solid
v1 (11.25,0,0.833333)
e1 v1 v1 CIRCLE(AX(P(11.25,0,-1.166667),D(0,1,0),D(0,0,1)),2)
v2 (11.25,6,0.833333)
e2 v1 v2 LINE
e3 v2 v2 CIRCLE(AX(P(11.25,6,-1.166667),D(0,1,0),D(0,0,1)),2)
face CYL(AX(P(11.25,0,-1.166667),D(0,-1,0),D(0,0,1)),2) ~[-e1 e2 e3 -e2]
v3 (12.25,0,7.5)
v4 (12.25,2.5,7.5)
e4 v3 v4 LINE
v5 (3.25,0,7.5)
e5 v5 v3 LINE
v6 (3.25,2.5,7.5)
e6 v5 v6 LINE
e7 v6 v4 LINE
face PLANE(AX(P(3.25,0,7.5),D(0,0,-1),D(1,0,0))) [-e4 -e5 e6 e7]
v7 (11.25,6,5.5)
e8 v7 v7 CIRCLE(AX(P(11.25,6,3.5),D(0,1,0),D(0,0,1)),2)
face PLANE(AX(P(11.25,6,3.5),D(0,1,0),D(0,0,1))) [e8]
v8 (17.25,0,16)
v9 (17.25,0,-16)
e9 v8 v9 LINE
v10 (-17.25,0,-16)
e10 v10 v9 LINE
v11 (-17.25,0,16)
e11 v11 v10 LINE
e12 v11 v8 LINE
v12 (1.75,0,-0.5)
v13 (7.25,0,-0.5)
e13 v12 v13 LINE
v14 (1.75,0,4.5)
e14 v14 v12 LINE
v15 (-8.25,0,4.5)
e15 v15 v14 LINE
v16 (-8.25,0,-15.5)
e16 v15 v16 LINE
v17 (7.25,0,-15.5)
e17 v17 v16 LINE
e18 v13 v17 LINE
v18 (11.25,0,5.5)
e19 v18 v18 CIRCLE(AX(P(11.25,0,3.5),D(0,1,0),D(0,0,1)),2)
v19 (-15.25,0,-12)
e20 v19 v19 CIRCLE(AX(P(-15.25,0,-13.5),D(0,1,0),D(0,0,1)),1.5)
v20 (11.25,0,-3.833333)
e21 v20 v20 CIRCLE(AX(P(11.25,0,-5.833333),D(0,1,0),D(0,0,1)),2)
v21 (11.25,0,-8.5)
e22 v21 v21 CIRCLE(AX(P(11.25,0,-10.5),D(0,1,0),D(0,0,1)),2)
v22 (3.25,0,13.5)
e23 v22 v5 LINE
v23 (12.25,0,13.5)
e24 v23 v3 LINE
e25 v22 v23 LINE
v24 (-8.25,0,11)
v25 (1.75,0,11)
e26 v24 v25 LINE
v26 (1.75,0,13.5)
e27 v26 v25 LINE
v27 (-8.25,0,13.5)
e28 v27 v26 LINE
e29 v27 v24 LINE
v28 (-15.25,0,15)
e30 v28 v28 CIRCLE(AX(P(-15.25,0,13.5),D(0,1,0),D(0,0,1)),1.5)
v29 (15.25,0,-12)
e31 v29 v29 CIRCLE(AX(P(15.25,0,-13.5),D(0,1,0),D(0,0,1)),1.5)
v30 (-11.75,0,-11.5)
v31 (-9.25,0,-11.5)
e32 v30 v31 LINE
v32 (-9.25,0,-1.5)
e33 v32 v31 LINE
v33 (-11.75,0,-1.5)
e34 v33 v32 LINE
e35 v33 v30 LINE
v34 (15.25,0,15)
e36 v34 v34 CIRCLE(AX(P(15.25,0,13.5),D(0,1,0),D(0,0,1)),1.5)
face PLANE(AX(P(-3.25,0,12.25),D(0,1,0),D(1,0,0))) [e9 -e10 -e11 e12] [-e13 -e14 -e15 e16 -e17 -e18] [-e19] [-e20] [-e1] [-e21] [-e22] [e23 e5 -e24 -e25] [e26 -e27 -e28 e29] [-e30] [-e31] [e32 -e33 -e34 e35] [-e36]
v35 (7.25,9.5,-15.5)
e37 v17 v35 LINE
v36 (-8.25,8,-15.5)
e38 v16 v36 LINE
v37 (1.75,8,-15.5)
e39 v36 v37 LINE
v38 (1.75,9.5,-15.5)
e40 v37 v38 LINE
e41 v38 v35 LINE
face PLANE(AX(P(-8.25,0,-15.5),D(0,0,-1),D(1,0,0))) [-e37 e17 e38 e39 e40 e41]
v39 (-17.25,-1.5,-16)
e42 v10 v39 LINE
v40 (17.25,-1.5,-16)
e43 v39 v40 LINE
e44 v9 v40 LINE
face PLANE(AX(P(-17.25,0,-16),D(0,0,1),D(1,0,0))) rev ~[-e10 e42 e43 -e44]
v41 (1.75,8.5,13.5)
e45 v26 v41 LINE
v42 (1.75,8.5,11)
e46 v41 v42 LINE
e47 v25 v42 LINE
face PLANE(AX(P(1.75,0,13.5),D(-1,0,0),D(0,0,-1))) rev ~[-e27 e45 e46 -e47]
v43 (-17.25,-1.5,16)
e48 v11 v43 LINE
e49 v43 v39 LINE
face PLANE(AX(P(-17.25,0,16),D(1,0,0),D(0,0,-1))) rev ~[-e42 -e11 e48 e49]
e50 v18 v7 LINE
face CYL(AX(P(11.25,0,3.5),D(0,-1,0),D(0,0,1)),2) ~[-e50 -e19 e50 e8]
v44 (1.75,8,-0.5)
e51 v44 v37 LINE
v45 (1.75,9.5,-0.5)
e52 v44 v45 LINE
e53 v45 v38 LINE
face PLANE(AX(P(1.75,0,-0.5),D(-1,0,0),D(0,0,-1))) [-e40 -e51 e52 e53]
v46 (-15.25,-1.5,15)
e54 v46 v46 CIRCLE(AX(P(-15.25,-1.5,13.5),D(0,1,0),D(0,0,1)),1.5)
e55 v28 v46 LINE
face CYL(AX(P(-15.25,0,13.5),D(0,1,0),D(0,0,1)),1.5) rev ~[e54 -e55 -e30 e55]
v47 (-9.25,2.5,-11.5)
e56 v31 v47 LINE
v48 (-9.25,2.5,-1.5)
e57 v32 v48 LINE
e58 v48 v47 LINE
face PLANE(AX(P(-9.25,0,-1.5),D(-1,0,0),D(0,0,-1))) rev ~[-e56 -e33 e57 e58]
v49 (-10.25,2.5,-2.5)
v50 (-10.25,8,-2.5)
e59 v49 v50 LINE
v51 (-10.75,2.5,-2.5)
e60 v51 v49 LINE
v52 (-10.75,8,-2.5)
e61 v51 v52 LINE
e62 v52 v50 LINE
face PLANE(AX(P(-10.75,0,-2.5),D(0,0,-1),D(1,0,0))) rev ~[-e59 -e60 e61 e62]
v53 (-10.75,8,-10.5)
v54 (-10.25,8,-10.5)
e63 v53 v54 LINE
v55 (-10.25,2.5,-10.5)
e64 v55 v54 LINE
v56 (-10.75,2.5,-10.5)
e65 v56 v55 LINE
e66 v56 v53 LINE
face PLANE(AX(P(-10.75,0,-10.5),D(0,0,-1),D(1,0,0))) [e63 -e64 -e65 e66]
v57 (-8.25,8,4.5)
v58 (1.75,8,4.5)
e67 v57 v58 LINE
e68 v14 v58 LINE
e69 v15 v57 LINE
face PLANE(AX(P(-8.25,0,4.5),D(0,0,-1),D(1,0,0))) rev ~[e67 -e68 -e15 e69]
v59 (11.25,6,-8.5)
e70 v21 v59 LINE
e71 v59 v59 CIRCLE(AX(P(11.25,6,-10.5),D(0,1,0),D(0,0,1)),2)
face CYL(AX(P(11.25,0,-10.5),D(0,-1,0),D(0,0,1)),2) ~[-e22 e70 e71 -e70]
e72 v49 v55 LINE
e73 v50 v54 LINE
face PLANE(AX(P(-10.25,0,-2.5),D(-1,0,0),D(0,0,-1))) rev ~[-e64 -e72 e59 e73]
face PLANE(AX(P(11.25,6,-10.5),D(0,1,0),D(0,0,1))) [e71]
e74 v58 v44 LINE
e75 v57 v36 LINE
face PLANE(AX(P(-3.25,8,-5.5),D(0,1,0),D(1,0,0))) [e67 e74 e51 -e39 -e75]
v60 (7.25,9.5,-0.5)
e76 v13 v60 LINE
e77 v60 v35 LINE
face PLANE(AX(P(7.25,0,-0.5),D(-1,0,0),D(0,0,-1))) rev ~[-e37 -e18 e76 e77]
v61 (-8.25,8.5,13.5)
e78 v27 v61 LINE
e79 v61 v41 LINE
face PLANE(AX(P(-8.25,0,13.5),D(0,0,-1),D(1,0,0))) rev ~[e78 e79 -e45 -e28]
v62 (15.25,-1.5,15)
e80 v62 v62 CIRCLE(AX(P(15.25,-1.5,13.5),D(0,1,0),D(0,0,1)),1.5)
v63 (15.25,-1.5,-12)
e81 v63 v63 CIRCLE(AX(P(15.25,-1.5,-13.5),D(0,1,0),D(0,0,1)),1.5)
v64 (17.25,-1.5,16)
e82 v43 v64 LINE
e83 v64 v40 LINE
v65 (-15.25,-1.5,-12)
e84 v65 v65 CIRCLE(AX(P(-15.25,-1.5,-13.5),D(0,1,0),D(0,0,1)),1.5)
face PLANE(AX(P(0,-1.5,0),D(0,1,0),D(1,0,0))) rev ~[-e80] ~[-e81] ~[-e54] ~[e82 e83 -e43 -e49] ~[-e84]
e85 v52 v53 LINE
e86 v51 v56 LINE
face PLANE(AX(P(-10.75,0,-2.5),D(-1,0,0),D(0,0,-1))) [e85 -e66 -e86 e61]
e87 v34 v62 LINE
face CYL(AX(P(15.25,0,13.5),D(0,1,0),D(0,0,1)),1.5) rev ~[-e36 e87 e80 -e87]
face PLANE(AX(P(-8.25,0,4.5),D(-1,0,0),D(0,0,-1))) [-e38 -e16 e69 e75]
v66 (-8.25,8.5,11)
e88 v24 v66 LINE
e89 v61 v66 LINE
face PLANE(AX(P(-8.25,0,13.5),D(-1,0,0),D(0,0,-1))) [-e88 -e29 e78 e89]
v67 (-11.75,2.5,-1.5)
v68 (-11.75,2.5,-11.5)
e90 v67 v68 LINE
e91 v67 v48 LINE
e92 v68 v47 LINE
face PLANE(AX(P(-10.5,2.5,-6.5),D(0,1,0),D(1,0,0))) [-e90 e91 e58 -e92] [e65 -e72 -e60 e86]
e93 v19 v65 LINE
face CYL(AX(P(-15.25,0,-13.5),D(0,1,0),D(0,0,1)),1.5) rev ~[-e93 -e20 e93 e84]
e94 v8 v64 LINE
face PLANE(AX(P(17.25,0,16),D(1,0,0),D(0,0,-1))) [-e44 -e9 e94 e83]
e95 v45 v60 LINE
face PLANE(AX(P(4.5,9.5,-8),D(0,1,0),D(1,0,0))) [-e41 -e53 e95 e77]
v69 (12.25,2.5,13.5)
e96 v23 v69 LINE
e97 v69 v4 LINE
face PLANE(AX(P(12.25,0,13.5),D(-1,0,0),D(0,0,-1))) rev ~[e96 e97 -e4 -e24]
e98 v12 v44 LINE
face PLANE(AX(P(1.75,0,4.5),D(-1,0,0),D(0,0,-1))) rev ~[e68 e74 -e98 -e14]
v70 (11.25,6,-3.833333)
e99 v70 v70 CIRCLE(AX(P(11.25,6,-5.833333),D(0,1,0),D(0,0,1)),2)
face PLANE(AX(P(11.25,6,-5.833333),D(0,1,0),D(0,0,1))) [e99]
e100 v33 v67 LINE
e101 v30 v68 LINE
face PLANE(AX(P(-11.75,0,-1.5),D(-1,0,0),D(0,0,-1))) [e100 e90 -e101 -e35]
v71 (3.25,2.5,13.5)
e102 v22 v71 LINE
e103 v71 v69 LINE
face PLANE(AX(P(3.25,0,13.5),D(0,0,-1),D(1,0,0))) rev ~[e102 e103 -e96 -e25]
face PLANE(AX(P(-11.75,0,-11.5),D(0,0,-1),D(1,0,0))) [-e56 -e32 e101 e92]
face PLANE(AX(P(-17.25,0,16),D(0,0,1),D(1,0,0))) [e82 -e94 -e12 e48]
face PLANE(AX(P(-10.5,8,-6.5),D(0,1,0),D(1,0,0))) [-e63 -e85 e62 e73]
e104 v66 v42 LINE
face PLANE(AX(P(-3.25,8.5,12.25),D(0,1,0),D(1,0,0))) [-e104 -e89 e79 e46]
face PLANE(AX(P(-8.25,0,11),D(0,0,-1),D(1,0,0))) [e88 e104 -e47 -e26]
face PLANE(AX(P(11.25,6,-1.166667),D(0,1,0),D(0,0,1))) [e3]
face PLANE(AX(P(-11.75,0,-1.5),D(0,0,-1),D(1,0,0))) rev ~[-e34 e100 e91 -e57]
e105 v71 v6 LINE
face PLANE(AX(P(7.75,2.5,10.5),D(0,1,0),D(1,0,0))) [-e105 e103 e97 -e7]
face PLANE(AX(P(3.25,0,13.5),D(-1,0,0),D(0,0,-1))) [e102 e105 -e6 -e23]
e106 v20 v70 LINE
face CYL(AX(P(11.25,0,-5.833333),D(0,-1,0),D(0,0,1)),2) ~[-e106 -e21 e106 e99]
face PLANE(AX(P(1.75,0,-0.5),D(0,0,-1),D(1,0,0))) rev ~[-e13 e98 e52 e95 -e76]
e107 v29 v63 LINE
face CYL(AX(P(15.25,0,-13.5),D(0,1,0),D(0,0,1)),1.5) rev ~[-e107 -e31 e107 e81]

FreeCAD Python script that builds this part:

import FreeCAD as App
import Part
import Sketcher

V = App.Vector
Q = App.Units.Quantity


def add_polygon(sketch, points):
    """Adds a closed chain of lines whose ends are joined by coincident constraints."""
    first, n = sketch.GeometryCount, len(points)
    for a, b in zip(points, points[1:] + points[:1]):
        sketch.addGeometry(Part.LineSegment(App.Vector(*a, 0), App.Vector(*b, 0)), False)
    for i in range(n):
        sketch.addConstraint(Sketcher.Constraint("Coincident", first + i, 2, first + (i + 1) % n, 1))

doc = App.newDocument("Part")
body = doc.addObject("PartDesign::Body", "Body")

# Sketch on XZ plane
sketch1 = doc.addObject("Sketcher::SketchObject", "Sketch")
body.addObject(sketch1)
sketch1.AttachmentSupport = (doc.XZ_Plane, [""])
sketch1.MapMode = "FlatFace"
add_polygon(sketch1, [(-17.25, -16), (-17.25, 16), (17.25, 16), (17.25, -16)])  # lines 0-3
sketch1.addGeometry(Part.Circle(V(-15.25, 13.5, 0), V(0, 0, 1), 1.5), False)  # 4
sketch1.addGeometry(Part.Circle(V(15.25, 13.5, 0), V(0, 0, 1), 1.5), False)  # 5
sketch1.addGeometry(Part.Circle(V(-15.25, -13.5, 0), V(0, 0, 1), 1.5), False)  # 6
sketch1.addGeometry(Part.Circle(V(15.25, -13.5, 0), V(0, 0, 1), 1.5), False)  # 7
sketch1.addConstraint(Sketcher.Constraint("Vertical", 0))
sketch1.addConstraint(Sketcher.Constraint("Horizontal", 1))
sketch1.addConstraint(Sketcher.Constraint("Vertical", 2))
sketch1.addConstraint(Sketcher.Constraint("Horizontal", 3))
sketch1.addConstraint(Sketcher.Constraint("Equal", 4, 5))
sketch1.addConstraint(Sketcher.Constraint("Equal", 5, 6))
sketch1.addConstraint(Sketcher.Constraint("Equal", 6, 7))
sketch1.addConstraint(Sketcher.Constraint("Symmetric", 5, 3, 6, 3, -1, 1))
sketch1.addConstraint(Sketcher.Constraint("Symmetric", 4, 3, 7, 3, -1, 1))
sketch1.addConstraint(Sketcher.Constraint("Symmetric", 0, 2, 2, 2, -1, 1))
sketch1.addConstraint(Sketcher.Constraint("Symmetric", 4, 3, 5, 3, -2))
sketch1.addConstraint(Sketcher.Constraint("Diameter", 4, Q("3 mm")))
sketch1.addConstraint(Sketcher.Constraint("DistanceY", 0, 1, 0, 2, Q("32 mm")))
sketch1.addConstraint(Sketcher.Constraint("DistanceX", 1, 1, 1, 2, Q("34.5 mm")))
sketch1.addConstraint(Sketcher.Constraint("DistanceY", 6, 3, 4, 3, Q("27 mm")))
sketch1.addConstraint(Sketcher.Constraint("DistanceX", 0, 2, 4, 3, Q("2 mm")))
pad1 = doc.addObject("PartDesign::Pad", "Pad")
body.addObject(pad1)
pad1.Profile = sketch1
pad1.Length = 1.5

# Sketch on XZ plane
sketch2 = doc.addObject("Sketcher::SketchObject", "Sketch001")
body.addObject(sketch2)
sketch2.AttachmentSupport = (doc.XZ_Plane, [""])
sketch2.MapMode = "FlatFace"
sketch2.addGeometry(Part.Circle(V(11.25, -5.833333, 0), V(0, 0, 1), 2), False)
sketch2.addGeometry(Part.Circle(V(11.25, -10.5, 0), V(0, 0, 1), 2), False)
sketch2.addGeometry(Part.Circle(V(11.25, -1.166667, 0), V(0, 0, 1), 2), False)
sketch2.addGeometry(Part.Circle(V(11.25, 3.5, 0), V(0, 0, 1), 2), False)
sketch2.addConstraint(Sketcher.Constraint("Equal", 0, 1))
sketch2.addConstraint(Sketcher.Constraint("Equal", 1, 2))
sketch2.addConstraint(Sketcher.Constraint("Equal", 2, 3))
sketch2.addConstraint(Sketcher.Constraint("Vertical", 0, 3, 1, 3))
sketch2.addConstraint(Sketcher.Constraint("Vertical", 1, 3, 2, 3))
sketch2.addConstraint(Sketcher.Constraint("Vertical", 2, 3, 3, 3))
sketch2.addConstraint(Sketcher.Constraint("Diameter", 0, Q("4 mm")))
sketch2.addConstraint(Sketcher.Constraint("DistanceY", 1, 3, 3, 3, Q("14 mm")))
sketch2.addConstraint(Sketcher.Constraint("DistanceY", 1, 3, -1, 1, Q("10.5 mm")))
sketch2.addConstraint(Sketcher.Constraint("DistanceX", -1, 1, 0, 3, Q("11.25 mm")))
sketch2.addConstraint(Sketcher.Constraint("DistanceY", 0, 3, -1, 1, Q("5.833333 mm")))
sketch2.addConstraint(Sketcher.Constraint("DistanceY", 2, 3, -1, 1, Q("1.166667 mm")))
pad2 = doc.addObject("PartDesign::Pad", "Pad001")
body.addObject(pad2)
pad2.Profile = sketch2
pad2.Length = 6
pad2.Reversed = True

# Sketch on XZ plane
sketch3 = doc.addObject("Sketcher::SketchObject", "Sketch002")
body.addObject(sketch3)
sketch3.AttachmentSupport = (doc.XZ_Plane, [""])
sketch3.MapMode = "FlatFace"
add_polygon(sketch3, [(3.25, 7.5), (3.25, 13.5), (12.25, 13.5), (12.25, 7.5)])  # lines 0-3
sketch3.addConstraint(Sketcher.Constraint("Vertical", 0))
sketch3.addConstraint(Sketcher.Constraint("Horizontal", 1))
sketch3.addConstraint(Sketcher.Constraint("Vertical", 2))
sketch3.addConstraint(Sketcher.Constraint("Horizontal", 3))
sketch3.addConstraint(Sketcher.Constraint("DistanceX", 1, 1, 1, 2, Q("9 mm")))
sketch3.addConstraint(Sketcher.Constraint("DistanceY", 0, 1, 0, 2, Q("6 mm")))
sketch3.addConstraint(Sketcher.Constraint("DistanceY", -1, 1, 0, 2, Q("13.5 mm")))
sketch3.addConstraint(Sketcher.Constraint("DistanceX", -1, 1, 0, 2, Q("3.25 mm")))
pad3 = doc.addObject("PartDesign::Pad", "Pad002")
body.addObject(pad3)
pad3.Profile = sketch3
pad3.Length = 2.5
pad3.Reversed = True

# Sketch on XZ plane
sketch4 = doc.addObject("Sketcher::SketchObject", "Sketch003")
body.addObject(sketch4)
sketch4.AttachmentSupport = (doc.XZ_Plane, [""])
sketch4.MapMode = "FlatFace"
add_polygon(sketch4, [(-8.25, 11), (-8.25, 13.5), (1.75, 13.5), (1.75, 11)])  # lines 0-3
sketch4.addConstraint(Sketcher.Constraint("Vertical", 0))
sketch4.addConstraint(Sketcher.Constraint("Horizontal", 1))
sketch4.addConstraint(Sketcher.Constraint("Vertical", 2))
sketch4.addConstraint(Sketcher.Constraint("Horizontal", 3))
sketch4.addConstraint(Sketcher.Constraint("DistanceX", 1, 1, 1, 2, Q("10 mm")))
sketch4.addConstraint(Sketcher.Constraint("DistanceY", 0, 1, 0, 2, Q("2.5 mm")))
sketch4.addConstraint(Sketcher.Constraint("DistanceY", -1, 1, 2, 2, Q("11 mm")))
sketch4.addConstraint(Sketcher.Constraint("DistanceX", 0, 2, -1, 1, Q("8.25 mm")))
pad4 = doc.addObject("PartDesign::Pad", "Pad003")
body.addObject(pad4)
pad4.Profile = sketch4
pad4.Length = 8.5
pad4.Reversed = True

# Sketch on XZ plane
sketch5 = doc.addObject("Sketcher::SketchObject", "Sketch004")
body.addObject(sketch5)
sketch5.AttachmentSupport = (doc.XZ_Plane, [""])
sketch5.MapMode = "FlatFace"
add_polygon(sketch5, [(1.75, -15.5), (1.75, -0.5), (7.25, -0.5), (7.25, -15.5)])  # lines 0-3
sketch5.addConstraint(Sketcher.Constraint("Vertical", 0))
sketch5.addConstraint(Sketcher.Constraint("Horizontal", 1))
sketch5.addConstraint(Sketcher.Constraint("Vertical", 2))
sketch5.addConstraint(Sketcher.Constraint("Horizontal", 3))
sketch5.addConstraint(Sketcher.Constraint("DistanceY", 0, 1, 0, 2, Q("15 mm")))
sketch5.addConstraint(Sketcher.Constraint("DistanceX", 1, 1, 1, 2, Q("5.5 mm")))
sketch5.addConstraint(Sketcher.Constraint("DistanceY", 0, 2, -1, 1, Q("0.5 mm")))
sketch5.addConstraint(Sketcher.Constraint("DistanceX", -1, 1, 0, 2, Q("1.75 mm")))
pad5 = doc.addObject("PartDesign::Pad", "Pad004")
body.addObject(pad5)
pad5.Profile = sketch5
pad5.Length = 9.5
pad5.Reversed = True

# Sketch on XZ plane
sketch6 = doc.addObject("Sketcher::SketchObject", "Sketch005")
body.addObject(sketch6)
sketch6.AttachmentSupport = (doc.XZ_Plane, [""])
sketch6.MapMode = "FlatFace"
add_polygon(sketch6, [(-8.25, -15.5), (-8.25, 4.5), (1.75, 4.5), (1.75, -15.5)])  # lines 0-3
sketch6.addConstraint(Sketcher.Constraint("Vertical", 0))
sketch6.addConstraint(Sketcher.Constraint("Horizontal", 1))
sketch6.addConstraint(Sketcher.Constraint("Vertical", 2))
sketch6.addConstraint(Sketcher.Constraint("Horizontal", 3))
sketch6.addConstraint(Sketcher.Constraint("DistanceX", 1, 1, 1, 2, Q("10 mm")))
sketch6.addConstraint(Sketcher.Constraint("DistanceY", 0, 1, 0, 2, Q("20 mm")))
sketch6.addConstraint(Sketcher.Constraint("DistanceY", -1, 1, 0, 2, Q("4.5 mm")))
sketch6.addConstraint(Sketcher.Constraint("DistanceX", 0, 2, -1, 1, Q("8.25 mm")))
pad6 = doc.addObject("PartDesign::Pad", "Pad005")
body.addObject(pad6)
pad6.Profile = sketch6
pad6.Length = 8
pad6.Reversed = True

# Sketch on XZ plane
sketch7 = doc.addObject("Sketcher::SketchObject", "Sketch006")
body.addObject(sketch7)
sketch7.AttachmentSupport = (doc.XZ_Plane, [""])
sketch7.MapMode = "FlatFace"
add_polygon(sketch7, [(-10.75, -10.5), (-10.75, -2.5), (-10.25, -2.5), (-10.25, -10.5)])  # lines 0-3
sketch7.addConstraint(Sketcher.Constraint("Vertical", 0))
sketch7.addConstraint(Sketcher.Constraint("Horizontal", 1))
sketch7.addConstraint(Sketcher.Constraint("Vertical", 2))
sketch7.addConstraint(Sketcher.Constraint("Horizontal", 3))
sketch7.addConstraint(Sketcher.Constraint("DistanceY", 0, 1, 0, 2, Q("8 mm")))
sketch7.addConstraint(Sketcher.Constraint("DistanceX", 1, 1, 1, 2, Q("0.5 mm")))
sketch7.addConstraint(Sketcher.Constraint("DistanceY", 0, 2, -1, 1, Q("2.5 mm")))
sketch7.addConstraint(Sketcher.Constraint("DistanceX", 0, 2, -1, 1, Q("10.75 mm")))
pad7 = doc.addObject("PartDesign::Pad", "Pad006")
body.addObject(pad7)
pad7.Profile = sketch7
pad7.Length = 8
pad7.Reversed = True

# Sketch on XZ plane
sketch8 = doc.addObject("Sketcher::SketchObject", "Sketch007")
body.addObject(sketch8)
sketch8.AttachmentSupport = (doc.XZ_Plane, [""])
sketch8.MapMode = "FlatFace"
add_polygon(sketch8, [(-11.75, -11.5), (-11.75, -1.5), (-9.25, -1.5), (-9.25, -11.5)])  # lines 0-3
add_polygon(sketch8, [(-10.25, -2.5), (-10.75, -2.5), (-10.75, -10.5), (-10.25, -10.5)])  # lines 4-7
sketch8.addConstraint(Sketcher.Constraint("Vertical", 0))
sketch8.addConstraint(Sketcher.Constraint("Horizontal", 1))
sketch8.addConstraint(Sketcher.Constraint("Vertical", 2))
sketch8.addConstraint(Sketcher.Constraint("Horizontal", 3))
sketch8.addConstraint(Sketcher.Constraint("Horizontal", 4))
sketch8.addConstraint(Sketcher.Constraint("Vertical", 5))
sketch8.addConstraint(Sketcher.Constraint("Horizontal", 6))
sketch8.addConstraint(Sketcher.Constraint("Vertical", 7))
sketch8.addConstraint(Sketcher.Constraint("DistanceY", 0, 1, 0, 2, Q("10 mm")))
sketch8.addConstraint(Sketcher.Constraint("DistanceY", 5, 2, 5, 1, Q("8 mm")))
sketch8.addConstraint(Sketcher.Constraint("DistanceX", 1, 1, 1, 2, Q("2.5 mm")))
sketch8.addConstraint(Sketcher.Constraint("DistanceX", 4, 2, 4, 1, Q("0.5 mm")))
sketch8.addConstraint(Sketcher.Constraint("DistanceX", 0, 2, 4, 2, Q("1 mm")))
sketch8.addConstraint(Sketcher.Constraint("DistanceY", 4, 2, 0, 2, Q("1 mm")))
sketch8.addConstraint(Sketcher.Constraint("DistanceY", 0, 2, -1, 1, Q("1.5 mm")))
sketch8.addConstraint(Sketcher.Constraint("DistanceX", 0, 2, -1, 1, Q("11.75 mm")))
pad8 = doc.addObject("PartDesign::Pad", "Pad007")
body.addObject(pad8)
pad8.Profile = sketch8
pad8.Length = 2.5
pad8.Reversed = True

doc.recompute()
